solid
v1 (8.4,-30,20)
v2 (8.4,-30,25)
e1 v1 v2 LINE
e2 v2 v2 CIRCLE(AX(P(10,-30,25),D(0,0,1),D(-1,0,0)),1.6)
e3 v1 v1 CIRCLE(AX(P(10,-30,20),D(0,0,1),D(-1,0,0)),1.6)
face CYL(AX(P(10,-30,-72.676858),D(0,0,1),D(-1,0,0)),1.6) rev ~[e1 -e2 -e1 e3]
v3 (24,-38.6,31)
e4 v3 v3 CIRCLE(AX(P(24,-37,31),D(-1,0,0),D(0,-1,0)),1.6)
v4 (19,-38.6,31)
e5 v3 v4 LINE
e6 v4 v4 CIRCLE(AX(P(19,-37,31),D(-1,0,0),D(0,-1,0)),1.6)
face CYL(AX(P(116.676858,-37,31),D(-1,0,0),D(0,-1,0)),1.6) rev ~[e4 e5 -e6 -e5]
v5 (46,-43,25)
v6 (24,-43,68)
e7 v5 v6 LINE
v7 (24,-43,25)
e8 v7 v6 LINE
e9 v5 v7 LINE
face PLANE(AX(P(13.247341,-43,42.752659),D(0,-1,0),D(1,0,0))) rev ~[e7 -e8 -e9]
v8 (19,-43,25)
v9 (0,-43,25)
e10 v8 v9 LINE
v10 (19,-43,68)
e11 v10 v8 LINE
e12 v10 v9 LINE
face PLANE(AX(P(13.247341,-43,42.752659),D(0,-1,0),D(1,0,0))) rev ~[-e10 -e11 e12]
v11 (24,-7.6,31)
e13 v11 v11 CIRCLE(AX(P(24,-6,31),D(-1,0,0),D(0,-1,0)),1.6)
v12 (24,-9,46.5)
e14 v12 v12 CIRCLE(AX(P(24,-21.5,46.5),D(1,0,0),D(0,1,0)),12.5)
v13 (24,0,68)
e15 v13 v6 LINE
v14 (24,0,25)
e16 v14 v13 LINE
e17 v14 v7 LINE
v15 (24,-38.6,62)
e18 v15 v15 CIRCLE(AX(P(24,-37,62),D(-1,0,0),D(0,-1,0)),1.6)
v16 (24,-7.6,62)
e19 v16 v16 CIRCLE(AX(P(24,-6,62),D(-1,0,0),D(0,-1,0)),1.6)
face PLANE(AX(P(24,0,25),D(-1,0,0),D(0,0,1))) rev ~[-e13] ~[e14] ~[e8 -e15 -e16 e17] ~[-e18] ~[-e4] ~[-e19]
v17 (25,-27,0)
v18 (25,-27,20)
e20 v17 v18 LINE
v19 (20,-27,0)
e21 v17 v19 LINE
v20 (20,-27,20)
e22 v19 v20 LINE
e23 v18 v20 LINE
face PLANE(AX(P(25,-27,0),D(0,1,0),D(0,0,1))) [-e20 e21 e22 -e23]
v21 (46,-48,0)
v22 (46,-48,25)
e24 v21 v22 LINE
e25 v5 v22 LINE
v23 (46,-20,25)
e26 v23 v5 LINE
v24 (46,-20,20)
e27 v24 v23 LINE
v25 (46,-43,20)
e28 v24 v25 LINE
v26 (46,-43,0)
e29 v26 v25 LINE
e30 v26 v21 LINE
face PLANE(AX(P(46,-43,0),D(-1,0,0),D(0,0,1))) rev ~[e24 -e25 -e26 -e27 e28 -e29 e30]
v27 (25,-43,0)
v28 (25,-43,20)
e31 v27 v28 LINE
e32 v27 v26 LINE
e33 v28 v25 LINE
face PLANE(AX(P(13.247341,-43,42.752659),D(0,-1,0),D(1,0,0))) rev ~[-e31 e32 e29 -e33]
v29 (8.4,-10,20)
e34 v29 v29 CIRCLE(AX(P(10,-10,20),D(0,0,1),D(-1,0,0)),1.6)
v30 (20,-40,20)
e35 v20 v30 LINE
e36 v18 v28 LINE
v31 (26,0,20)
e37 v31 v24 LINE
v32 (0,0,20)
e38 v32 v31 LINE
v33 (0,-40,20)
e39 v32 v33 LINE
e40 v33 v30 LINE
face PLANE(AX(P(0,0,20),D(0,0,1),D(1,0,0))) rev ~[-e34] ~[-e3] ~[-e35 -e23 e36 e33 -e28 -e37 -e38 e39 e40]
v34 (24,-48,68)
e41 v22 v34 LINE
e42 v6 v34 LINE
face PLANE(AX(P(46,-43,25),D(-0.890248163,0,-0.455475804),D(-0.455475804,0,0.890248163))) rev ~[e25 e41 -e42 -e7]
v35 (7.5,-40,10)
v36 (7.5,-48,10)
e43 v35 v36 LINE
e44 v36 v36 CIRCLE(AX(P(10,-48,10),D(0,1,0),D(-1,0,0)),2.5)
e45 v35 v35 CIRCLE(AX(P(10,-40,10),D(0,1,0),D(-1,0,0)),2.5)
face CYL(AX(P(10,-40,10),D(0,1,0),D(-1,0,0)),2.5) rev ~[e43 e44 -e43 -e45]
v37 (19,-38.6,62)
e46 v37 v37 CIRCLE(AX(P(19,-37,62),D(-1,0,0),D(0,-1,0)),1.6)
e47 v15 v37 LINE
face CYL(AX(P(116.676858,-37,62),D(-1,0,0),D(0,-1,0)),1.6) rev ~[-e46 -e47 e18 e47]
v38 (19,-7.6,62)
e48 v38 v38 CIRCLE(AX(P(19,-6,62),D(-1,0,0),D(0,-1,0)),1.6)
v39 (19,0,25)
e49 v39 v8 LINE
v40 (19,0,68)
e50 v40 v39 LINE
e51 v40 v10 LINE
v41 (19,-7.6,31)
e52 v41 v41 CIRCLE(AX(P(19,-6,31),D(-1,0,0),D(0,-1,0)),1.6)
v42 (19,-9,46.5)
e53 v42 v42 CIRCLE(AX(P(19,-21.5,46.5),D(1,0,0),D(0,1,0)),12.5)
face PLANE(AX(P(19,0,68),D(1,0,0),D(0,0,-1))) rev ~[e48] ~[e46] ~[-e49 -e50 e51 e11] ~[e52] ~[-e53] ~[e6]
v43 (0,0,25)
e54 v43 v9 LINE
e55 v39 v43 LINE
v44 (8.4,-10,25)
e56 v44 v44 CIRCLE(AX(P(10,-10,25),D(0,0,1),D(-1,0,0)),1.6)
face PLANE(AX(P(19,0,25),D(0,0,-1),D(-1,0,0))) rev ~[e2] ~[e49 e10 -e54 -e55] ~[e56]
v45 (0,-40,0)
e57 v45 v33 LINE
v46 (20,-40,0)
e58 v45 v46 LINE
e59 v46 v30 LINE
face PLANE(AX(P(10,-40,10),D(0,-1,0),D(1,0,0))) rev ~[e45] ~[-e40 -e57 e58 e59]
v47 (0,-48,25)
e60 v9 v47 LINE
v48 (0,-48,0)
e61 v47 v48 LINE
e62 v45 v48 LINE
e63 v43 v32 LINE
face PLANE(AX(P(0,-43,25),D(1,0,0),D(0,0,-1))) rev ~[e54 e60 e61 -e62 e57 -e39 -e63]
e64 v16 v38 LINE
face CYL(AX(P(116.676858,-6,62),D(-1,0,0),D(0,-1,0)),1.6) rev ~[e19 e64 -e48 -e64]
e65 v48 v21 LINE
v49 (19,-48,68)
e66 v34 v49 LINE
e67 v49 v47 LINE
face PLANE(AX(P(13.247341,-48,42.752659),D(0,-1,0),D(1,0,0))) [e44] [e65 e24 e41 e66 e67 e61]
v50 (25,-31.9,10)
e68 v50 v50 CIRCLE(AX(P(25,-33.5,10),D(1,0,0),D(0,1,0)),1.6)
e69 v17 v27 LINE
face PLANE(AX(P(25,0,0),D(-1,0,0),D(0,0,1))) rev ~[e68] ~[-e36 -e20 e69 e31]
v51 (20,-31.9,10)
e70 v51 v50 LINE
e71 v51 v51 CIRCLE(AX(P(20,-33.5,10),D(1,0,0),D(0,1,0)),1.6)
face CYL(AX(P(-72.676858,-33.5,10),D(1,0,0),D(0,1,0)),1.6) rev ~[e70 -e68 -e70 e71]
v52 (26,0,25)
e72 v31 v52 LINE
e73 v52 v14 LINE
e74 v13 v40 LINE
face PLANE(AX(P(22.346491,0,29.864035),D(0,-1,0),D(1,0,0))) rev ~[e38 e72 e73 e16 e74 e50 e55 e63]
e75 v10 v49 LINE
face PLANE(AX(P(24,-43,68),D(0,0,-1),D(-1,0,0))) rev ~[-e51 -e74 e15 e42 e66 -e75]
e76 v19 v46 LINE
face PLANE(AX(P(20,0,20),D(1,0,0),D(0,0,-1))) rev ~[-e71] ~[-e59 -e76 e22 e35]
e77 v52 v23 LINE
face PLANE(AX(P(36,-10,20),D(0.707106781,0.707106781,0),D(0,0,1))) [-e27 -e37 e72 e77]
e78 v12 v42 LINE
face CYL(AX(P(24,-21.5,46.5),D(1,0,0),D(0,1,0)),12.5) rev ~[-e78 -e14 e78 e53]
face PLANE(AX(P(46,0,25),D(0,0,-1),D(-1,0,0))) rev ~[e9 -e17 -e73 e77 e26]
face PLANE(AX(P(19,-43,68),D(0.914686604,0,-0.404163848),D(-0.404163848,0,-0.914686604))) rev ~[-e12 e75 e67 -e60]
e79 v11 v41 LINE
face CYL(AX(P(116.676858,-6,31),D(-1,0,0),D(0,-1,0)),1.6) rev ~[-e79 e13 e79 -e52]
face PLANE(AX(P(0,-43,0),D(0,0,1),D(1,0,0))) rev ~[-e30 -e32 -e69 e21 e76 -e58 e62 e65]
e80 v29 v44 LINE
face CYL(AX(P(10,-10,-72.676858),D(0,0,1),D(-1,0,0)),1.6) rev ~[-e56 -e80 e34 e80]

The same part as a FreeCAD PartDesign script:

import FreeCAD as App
import Part
import Sketcher

V = App.Vector


def edges_at(feature, points):
    """Names of the edges that pass closest to the given points."""
    edges = feature.Shape.Edges
    near = lambda p: min(range(len(edges)), key=lambda i: edges[i].distToShape(Part.Vertex(*p))[0])
    return sorted({f"Edge{near(p) + 1}" for p in points})


def add_polygon(sketch, points):
    """Adds a closed chain of lines whose ends are joined by coincident constraints."""
    first, n = sketch.GeometryCount, len(points)
    for a, b in zip(points, points[1:] + points[:1]):
        sketch.addGeometry(Part.LineSegment(App.Vector(*a, 0), App.Vector(*b, 0)), False)
    for i in range(n):
        sketch.addConstraint(Sketcher.Constraint("Coincident", first + i, 2, first + (i + 1) % n, 1))

doc = App.newDocument("Part")
body = doc.addObject("PartDesign::Body", "Body")

sketch1 = doc.addObject("Sketcher::SketchObject", "Sketch")
body.addObject(sketch1)
sketch1.AttachmentSupport = (doc.XZ_Plane, [""])
sketch1.MapMode = "FlatFace"
add_polygon(sketch1, [(0, 25), (0, 20), (20, 20), (20, 0), (25, 0), (25, 20), (46, 20), (46, 25), (24, 25), (24, 68), (19, 68), (19, 25)])
sketch1.addConstraint([
    Sketcher.Constraint("Vertical", 0),
    Sketcher.Constraint("Horizontal", 1),
    Sketcher.Constraint("Vertical", 2),
    Sketcher.Constraint("Horizontal", 3),
    Sketcher.Constraint("Vertical", 4),
    Sketcher.Constraint("Horizontal", 5),
    Sketcher.Constraint("Vertical", 6),
    Sketcher.Constraint("Horizontal", 7),
    Sketcher.Constraint("Vertical", 8),
    Sketcher.Constraint("Horizontal", 9),
    Sketcher.Constraint("Vertical", 10),
    Sketcher.Constraint("Horizontal", 11),
    Sketcher.Constraint("PointOnObject", 0, 2, -2),
    Sketcher.Constraint("PointOnObject", 2, 2, -1),
    Sketcher.Constraint("Horizontal", 1, 2, 4, 2),
    Sketcher.Constraint("Horizontal", 7, 2, 10, 2),
    Sketcher.Constraint("Equal", 3, 9),
    Sketcher.Constraint("Equal", 9, 0),
    Sketcher.Constraint("Equal", 1, 2),
    Sketcher.Constraint("DistanceX", 1, 1, 1, 2, 20.0),
    Sketcher.Constraint("DistanceX", 3, 1, 3, 2, 5.0),
    Sketcher.Constraint("DistanceX", 5, 1, 5, 2, 21.0),
    Sketcher.Constraint("DistanceX", 7, 2, 7, 1, 22.0),
    Sketcher.Constraint("DistanceY", 8, 1, 8, 2, 43.0),
])
pad1 = doc.addObject("PartDesign::Pad", "Pad")
body.addObject(pad1)
pad1.Profile = sketch1
pad1.Length = 43

sketch2 = doc.addObject("Sketcher::SketchObject", "Sketch001")
body.addObject(sketch2)
sketch2.AttachmentSupport = (doc.XZ_Plane, [""])
sketch2.MapMode = "FlatFace"
sketch2.AttachmentOffset = App.Placement(V(0, 0, 43), App.Rotation())
add_polygon(sketch2, [(0, 20), (0, 0), (20, 0), (20, 20)])
sketch2.addConstraint([
    Sketcher.Constraint("Vertical", 0),
    Sketcher.Constraint("Horizontal", 1),
    Sketcher.Constraint("Vertical", 2),
    Sketcher.Constraint("Horizontal", 3),
    Sketcher.Constraint("Coincident", 0, 2, -1, 1),
    Sketcher.Constraint("Equal", 3, 0),
    Sketcher.Constraint("DistanceX", 1, 1, 1, 2, 20.0),
])
pad2 = doc.addObject("PartDesign::Pad", "Pad001")
body.addObject(pad2)
pad2.Profile = sketch2
pad2.Length = 3
pad2.Reversed = True

sketch3 = doc.addObject("Sketcher::SketchObject", "Sketch002")
body.addObject(sketch3)
sketch3.AttachmentSupport = (doc.YZ_Plane, [""])
sketch3.MapMode = "FlatFace"
sketch3.AttachmentOffset = App.Placement(V(0, 0, 25), App.Rotation())
add_polygon(sketch3, [(-27, 20), (-27, 0), (0, 0), (0, 20)])
sketch3.addConstraint([
    Sketcher.Constraint("Vertical", 0),
    Sketcher.Constraint("Horizontal", 1),
    Sketcher.Constraint("Vertical", 2),
    Sketcher.Constraint("Horizontal", 3),
    Sketcher.Constraint("Coincident", 1, 2, -1, 1),
    Sketcher.Constraint("DistanceX", 1, 1, 1, 2, 27.0),
    Sketcher.Constraint("DistanceY", 0, 2, 0, 1, 20.0),
])
pocket1 = doc.addObject("PartDesign::Pocket", "Pocket")
body.addObject(pocket1)
pocket1.Profile = sketch3
pocket1.Type = "ThroughAll"

sketch4 = doc.addObject("Sketcher::SketchObject", "Sketch003")
body.addObject(sketch4)
sketch4.AttachmentSupport = (doc.YZ_Plane, [""])
sketch4.MapMode = "FlatFace"
sketch4.AttachmentOffset = App.Placement(V(0, 0, 24), App.Rotation())
sketch4.addGeometry(Part.Circle(V(-22, 46, 0), V(0, 0, 1), 12), False)
sketch4.addConstraint([
    Sketcher.Constraint("Diameter", 0, 25.0),
    Sketcher.Constraint("DistanceX", 0, 3, -1, 1, 21.5),
    Sketcher.Constraint("DistanceY", -1, 1, 0, 3, 46.5),
])
pocket2 = doc.addObject("PartDesign::Pocket", "Pocket001")
body.addObject(pocket2)
pocket2.Profile = sketch4
pocket2.Type = "ThroughAll"

sketch5 = doc.addObject("Sketcher::SketchObject", "Sketch004")
body.addObject(sketch5)
sketch5.AttachmentSupport = (doc.YZ_Plane, [""])
sketch5.MapMode = "FlatFace"
sketch5.AttachmentOffset = App.Placement(V(0, 0, 24), App.Rotation())
sketch5.addGeometry([
    Part.Circle(V(-37, 62, 0), V(0, 0, 1), 1.6),
    Part.Circle(V(-6, 62, 0), V(0, 0, 1), 1.6),
    Part.Circle(V(-37, 31, 0), V(0, 0, 1), 1.6),
    Part.Circle(V(-6, 31, 0), V(0, 0, 1), 1.6),
], False)
sketch5.addConstraint([
    Sketcher.Constraint("Equal", 0, 1),
    Sketcher.Constraint("Equal", 1, 2),
    Sketcher.Constraint("Equal", 2, 3),
    Sketcher.Constraint("Horizontal", 0, 3, 1, 3),
    Sketcher.Constraint("Horizontal", 2, 3, 3, 3),
    Sketcher.Constraint("Vertical", 0, 3, 2, 3),
    Sketcher.Constraint("Vertical", 1, 3, 3, 3),
    Sketcher.Constraint("Diameter", 0, 3.2),
    Sketcher.Constraint("DistanceX", 0, 3, -1, 1, 37.0),
    Sketcher.Constraint("DistanceY", -1, 1, 0, 3, 62.0),
    Sketcher.Constraint("DistanceX", 1, 3, -1, 1, 6.0),
    Sketcher.Constraint("DistanceY", -1, 1, 2, 3, 31.0),
])
doc.recompute()
hole = doc.addObject("PartDesign::Hole", "Hole")
body.addObject(hole)
hole.Profile = sketch5
hole.ThreadType = "None"
hole.Diameter = 3.2
hole.DepthType = "ThroughAll"

sketch6 = doc.addObject("Sketcher::SketchObject", "Sketch005")
body.addObject(sketch6)
sketch6.AttachmentSupport = (doc.XY_Plane, [""])
sketch6.MapMode = "FlatFace"
sketch6.AttachmentOffset = App.Placement(V(0, 0, 20), App.Rotation())
sketch6.addGeometry([
    Part.Circle(V(10, -10, 0), V(0, 0, 1), 1.6),
    Part.Circle(V(10, -30, 0), V(0, 0, 1), 1.6),
], False)
sketch6.addConstraint([
    Sketcher.Constraint("Equal", 0, 1),
    Sketcher.Constraint("Vertical", 0, 3, 1, 3),
    Sketcher.Constraint("Diameter", 0, 3.2),
    Sketcher.Constraint("DistanceX", -1, 1, 0, 3, 10.0),
    Sketcher.Constraint("DistanceY", 0, 3, -1, 1, 10.0),
    Sketcher.Constraint("DistanceY", 1, 3, -1, 1, 30.0),
])
doc.recompute()
hole2 = doc.addObject("PartDesign::Hole", "Hole001")
body.addObject(hole2)
hole2.Profile = sketch6
hole2.ThreadType = "None"
hole2.Diameter = 3.2
hole2.DepthType = "ThroughAll"
hole2.Reversed = True

sketch7 = doc.addObject("Sketcher::SketchObject", "Sketch006")
body.addObject(sketch7)
sketch7.AttachmentSupport = (doc.YZ_Plane, [""])
sketch7.MapMode = "FlatFace"
sketch7.AttachmentOffset = App.Placement(V(0, 0, 20), App.Rotation())
sketch7.addGeometry(Part.Circle(V(-33.5, 10, 0), V(0, 0, 1), 1.6), False)
sketch7.addConstraint([
    Sketcher.Constraint("Diameter", 0, 3.2),
    Sketcher.Constraint("DistanceY", -1, 1, 0, 3, 10.0),
    Sketcher.Constraint("DistanceX", 0, 3, -1, 1, 33.5),
])
doc.recompute()
hole3 = doc.addObject("PartDesign::Hole", "Hole002")
body.addObject(hole3)
hole3.Profile = sketch7
hole3.ThreadType = "None"
hole3.Diameter = 3.2
hole3.DepthType = "ThroughAll"
hole3.Reversed = True

sketch8 = doc.addObject("Sketcher::SketchObject", "Sketch007")
body.addObject(sketch8)
sketch8.AttachmentSupport = (doc.XZ_Plane, [""])
sketch8.MapMode = "FlatFace"
sketch8.AttachmentOffset = App.Placement(V(0, 0, 43), App.Rotation())
add_polygon(sketch8, [(19, 68), (0, 25), (0, 0), (46, 0), (46, 25), (24, 68)])
sketch8.addConstraint([
    Sketcher.Constraint("Vertical", 1),
    Sketcher.Constraint("Horizontal", 2),
    Sketcher.Constraint("Vertical", 3),
    Sketcher.Constraint("Horizontal", 5),
    Sketcher.Constraint("Coincident", 1, 2, -1, 1),
    Sketcher.Constraint("Horizontal", 0, 2, 3, 2),
    Sketcher.Constraint("DistanceX", 2, 1, 2, 2, 46.0),
    Sketcher.Constraint("DistanceX", 5, 2, 5, 1, 5.0),
    Sketcher.Constraint("DistanceY", 1, 2, 1, 1, 25.0),
    Sketcher.Constraint("DistanceX", -1, 1, 4, 2, 24.0),
    Sketcher.Constraint("DistanceY", -1, 1, 4, 2, 68.0),
])
pad3 = doc.addObject("PartDesign::Pad", "Pad002")
body.addObject(pad3)
pad3.Profile = sketch8
pad3.Length = 5
doc.recompute()

chamfer = doc.addObject("PartDesign::Chamfer", "Chamfer")
body.addObject(chamfer)
chamfer.Base = (pad3, edges_at(pad3, [(46, 0, 22.5)]))
chamfer.Size = 20

sketch9 = doc.addObject("Sketcher::SketchObject", "Sketch008")
body.addObject(sketch9)
sketch9.AttachmentSupport = (doc.XZ_Plane, [""])
sketch9.MapMode = "FlatFace"
sketch9.AttachmentOffset = App.Placement(V(0, 0, 40), App.Rotation())
sketch9.addGeometry(Part.Circle(V(10, 10, 0), V(0, 0, 1), 2.5), False)
sketch9.addConstraint([
    Sketcher.Constraint("Diameter", 0, 5.0),
    Sketcher.Constraint("DistanceX", -1, 1, 0, 3, 10.0),
    Sketcher.Constraint("DistanceY", -1, 1, 0, 3, 10.0),
])
pocket3 = doc.addObject("PartDesign::Pocket", "Pocket002")
body.addObject(pocket3)
pocket3.Profile = sketch9
pocket3.Type = "ThroughAll"
pocket3.Reversed = True

doc.recompute()
